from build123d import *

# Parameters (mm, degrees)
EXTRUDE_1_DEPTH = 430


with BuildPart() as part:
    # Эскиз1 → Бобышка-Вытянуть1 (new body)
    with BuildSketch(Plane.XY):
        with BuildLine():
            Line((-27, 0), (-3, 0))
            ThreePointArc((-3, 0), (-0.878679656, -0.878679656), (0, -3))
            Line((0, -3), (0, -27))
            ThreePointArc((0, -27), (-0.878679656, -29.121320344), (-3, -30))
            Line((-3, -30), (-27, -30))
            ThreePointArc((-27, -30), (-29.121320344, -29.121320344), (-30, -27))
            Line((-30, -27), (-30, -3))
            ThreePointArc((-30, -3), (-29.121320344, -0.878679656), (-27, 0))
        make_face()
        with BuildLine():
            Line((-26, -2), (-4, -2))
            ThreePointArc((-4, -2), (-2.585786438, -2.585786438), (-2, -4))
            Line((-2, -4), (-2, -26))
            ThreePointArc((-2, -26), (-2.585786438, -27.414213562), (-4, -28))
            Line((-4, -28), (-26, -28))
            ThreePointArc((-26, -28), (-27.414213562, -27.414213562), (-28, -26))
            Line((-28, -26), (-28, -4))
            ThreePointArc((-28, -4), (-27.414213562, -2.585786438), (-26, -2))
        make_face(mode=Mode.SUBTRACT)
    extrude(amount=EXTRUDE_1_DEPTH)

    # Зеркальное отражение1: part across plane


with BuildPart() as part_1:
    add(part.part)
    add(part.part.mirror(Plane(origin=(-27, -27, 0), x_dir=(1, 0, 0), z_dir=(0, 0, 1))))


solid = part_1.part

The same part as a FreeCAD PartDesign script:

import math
import FreeCAD as App
import Part
import Sketcher

V = App.Vector
Q = App.Units.Quantity

doc = App.newDocument("Part")
params = doc.addObject("Spreadsheet::Sheet", "Params")
for row, (alias, value) in enumerate([
    ("sketch1_radius", "3 mm"),
    ("sketch1_radius2", "2 mm"),
    ("sketch1_width", "24 mm"),
    ("sketch1_width2", "22 mm"),
    ("pad1_length", "430 mm"),
], start=1):
    params.set(f"A{row}", alias)
    params.set(f"B{row}", "=" + value)
    params.setAlias(f"B{row}", alias)

body = doc.addObject("PartDesign::Body", "Body")

sketch1 = body.newObject("Sketcher::SketchObject", "Sketch")
sketch1.AttachmentSupport = (doc.getObject("XY_Plane"), [""])
sketch1.MapMode = "FlatFace"
sketch1.addGeometry([
    Part.LineSegment(V(-3, 0, 0), V(-27, 0, 0)),
    Part.ArcOfCircle(Part.Circle(V(-27, -3, 0), V(0, 0, 1), 3), math.radians(90), math.radians(180)),
    Part.LineSegment(V(-30, -3, 0), V(-30, -27, 0)),
    Part.ArcOfCircle(Part.Circle(V(-27, -27, 0), V(0, 0, 1), 3), math.radians(180), math.radians(270)),
    Part.LineSegment(V(-27, -30, 0), V(-3, -30, 0)),
    Part.ArcOfCircle(Part.Circle(V(-3, -27, 0), V(0, 0, 1), 3), math.radians(-90), math.radians(0)),
    Part.LineSegment(V(0, -27, 0), V(0, -3, 0)),
    Part.ArcOfCircle(Part.Circle(V(-3, -3, 0), V(0, 0, 1), 3), math.radians(0), math.radians(90)),
    Part.LineSegment(V(-26, -2, 0), V(-4, -2, 0)),
    Part.ArcOfCircle(Part.Circle(V(-4, -4, 0), V(0, 0, 1), 2), math.radians(0), math.radians(90)),
    Part.LineSegment(V(-2, -4, 0), V(-2, -26, 0)),
    Part.ArcOfCircle(Part.Circle(V(-4, -26, 0), V(0, 0, 1), 2), math.radians(-90), math.radians(0)),
    Part.LineSegment(V(-4, -28, 0), V(-26, -28, 0)),
    Part.ArcOfCircle(Part.Circle(V(-26, -26, 0), V(0, 0, 1), 2), math.radians(-180), math.radians(-90)),
    Part.LineSegment(V(-28, -26, 0), V(-28, -4, 0)),
    Part.ArcOfCircle(Part.Circle(V(-26, -4, 0), V(0, 0, 1), 2), math.radians(90), math.radians(180)),
], False)
sketch1.addConstraint([
    Sketcher.Constraint("Tangent", 0, 2, 1, 1),
    Sketcher.Constraint("Tangent", 1, 2, 2, 1),
    Sketcher.Constraint("Tangent", 2, 2, 3, 1),
    Sketcher.Constraint("Tangent", 3, 2, 4, 1),
    Sketcher.Constraint("Tangent", 4, 2, 5, 1),
    Sketcher.Constraint("Tangent", 5, 2, 6, 1),
    Sketcher.Constraint("Tangent", 6, 2, 7, 1),
    Sketcher.Constraint("Tangent", 7, 2, 0, 1),
    Sketcher.Constraint("Tangent", 8, 2, 9, 2),
    Sketcher.Constraint("Tangent", 9, 1, 10, 1),
    Sketcher.Constraint("Tangent", 10, 2, 11, 2),
    Sketcher.Constraint("Tangent", 11, 1, 12, 1),
    Sketcher.Constraint("Tangent", 12, 2, 13, 2),
    Sketcher.Constraint("Tangent", 13, 1, 14, 1),
    Sketcher.Constraint("Tangent", 14, 2, 15, 2),
    Sketcher.Constraint("Tangent", 15, 1, 8, 1),
    Sketcher.Constraint("Horizontal", 0),
    Sketcher.Constraint("Vertical", 2),
    Sketcher.Constraint("Horizontal", 4),
    Sketcher.Constraint("Vertical", 6),
    Sketcher.Constraint("Horizontal", 8),
    Sketcher.Constraint("Vertical", 10),
    Sketcher.Constraint("Horizontal", 12),
    Sketcher.Constraint("Vertical", 14),
    Sketcher.Constraint("Equal", 1, 3),
    Sketcher.Constraint("Equal", 3, 5),
    Sketcher.Constraint("Equal", 5, 7),
    Sketcher.Constraint("Equal", 9, 11),
    Sketcher.Constraint("Equal", 11, 13),
    Sketcher.Constraint("Equal", 13, 15),
    Sketcher.Constraint("PointOnObject", 0, 2, -1),
    Sketcher.Constraint("PointOnObject", 5, 2, -2),
    Sketcher.Constraint("Equal", 4, 2),
    Sketcher.Constraint("Equal", 12, 10),
    Sketcher.Constraint("Radius", 1, Q("3 mm")),
    Sketcher.Constraint("Radius", 9, Q("2 mm")),
    Sketcher.Constraint("DistanceX", 0, 2, 0, 1, Q("24 mm")),
    Sketcher.Constraint("DistanceX", 8, 1, 8, 2, Q("22 mm")),
    Sketcher.Constraint("DistanceX", 9, 3, -1, 1, Q("4 mm")),
    Sketcher.Constraint("DistanceY", 9, 3, -1, 1, Q("4 mm")),
])
sketch1.setExpression("Constraints[34]", "Params.sketch1_radius")
sketch1.setExpression("Constraints[35]", "Params.sketch1_radius2")
sketch1.setExpression("Constraints[36]", "Params.sketch1_width")
sketch1.setExpression("Constraints[37]", "Params.sketch1_width2")
pad1 = body.newObject("PartDesign::Pad", "Pad")
pad1.Profile = sketch1
pad1.setExpression("Length", "Params.pad1_length")
body2 = doc.addObject("PartDesign::Body", "Body001")
doc.recompute()

body2.BaseFeature = body
doc.recompute()

mirroring = doc.addObject("Part::Mirroring", "Mirroring")
mirroring.Source = body
mirroring.Base = V(-27, -27, 0)
mirroring.Normal = V(0, 0, 1)
body3 = doc.addObject("PartDesign::Body", "Body002")
body3.BaseFeature = mirroring
boolean = body2.newObject("PartDesign::Boolean", "Boolean")
boolean.Type = "Fuse"
boolean.addObjects([body3])
doc.recompute()
mirroring.Visibility = False

doc.recompute()
